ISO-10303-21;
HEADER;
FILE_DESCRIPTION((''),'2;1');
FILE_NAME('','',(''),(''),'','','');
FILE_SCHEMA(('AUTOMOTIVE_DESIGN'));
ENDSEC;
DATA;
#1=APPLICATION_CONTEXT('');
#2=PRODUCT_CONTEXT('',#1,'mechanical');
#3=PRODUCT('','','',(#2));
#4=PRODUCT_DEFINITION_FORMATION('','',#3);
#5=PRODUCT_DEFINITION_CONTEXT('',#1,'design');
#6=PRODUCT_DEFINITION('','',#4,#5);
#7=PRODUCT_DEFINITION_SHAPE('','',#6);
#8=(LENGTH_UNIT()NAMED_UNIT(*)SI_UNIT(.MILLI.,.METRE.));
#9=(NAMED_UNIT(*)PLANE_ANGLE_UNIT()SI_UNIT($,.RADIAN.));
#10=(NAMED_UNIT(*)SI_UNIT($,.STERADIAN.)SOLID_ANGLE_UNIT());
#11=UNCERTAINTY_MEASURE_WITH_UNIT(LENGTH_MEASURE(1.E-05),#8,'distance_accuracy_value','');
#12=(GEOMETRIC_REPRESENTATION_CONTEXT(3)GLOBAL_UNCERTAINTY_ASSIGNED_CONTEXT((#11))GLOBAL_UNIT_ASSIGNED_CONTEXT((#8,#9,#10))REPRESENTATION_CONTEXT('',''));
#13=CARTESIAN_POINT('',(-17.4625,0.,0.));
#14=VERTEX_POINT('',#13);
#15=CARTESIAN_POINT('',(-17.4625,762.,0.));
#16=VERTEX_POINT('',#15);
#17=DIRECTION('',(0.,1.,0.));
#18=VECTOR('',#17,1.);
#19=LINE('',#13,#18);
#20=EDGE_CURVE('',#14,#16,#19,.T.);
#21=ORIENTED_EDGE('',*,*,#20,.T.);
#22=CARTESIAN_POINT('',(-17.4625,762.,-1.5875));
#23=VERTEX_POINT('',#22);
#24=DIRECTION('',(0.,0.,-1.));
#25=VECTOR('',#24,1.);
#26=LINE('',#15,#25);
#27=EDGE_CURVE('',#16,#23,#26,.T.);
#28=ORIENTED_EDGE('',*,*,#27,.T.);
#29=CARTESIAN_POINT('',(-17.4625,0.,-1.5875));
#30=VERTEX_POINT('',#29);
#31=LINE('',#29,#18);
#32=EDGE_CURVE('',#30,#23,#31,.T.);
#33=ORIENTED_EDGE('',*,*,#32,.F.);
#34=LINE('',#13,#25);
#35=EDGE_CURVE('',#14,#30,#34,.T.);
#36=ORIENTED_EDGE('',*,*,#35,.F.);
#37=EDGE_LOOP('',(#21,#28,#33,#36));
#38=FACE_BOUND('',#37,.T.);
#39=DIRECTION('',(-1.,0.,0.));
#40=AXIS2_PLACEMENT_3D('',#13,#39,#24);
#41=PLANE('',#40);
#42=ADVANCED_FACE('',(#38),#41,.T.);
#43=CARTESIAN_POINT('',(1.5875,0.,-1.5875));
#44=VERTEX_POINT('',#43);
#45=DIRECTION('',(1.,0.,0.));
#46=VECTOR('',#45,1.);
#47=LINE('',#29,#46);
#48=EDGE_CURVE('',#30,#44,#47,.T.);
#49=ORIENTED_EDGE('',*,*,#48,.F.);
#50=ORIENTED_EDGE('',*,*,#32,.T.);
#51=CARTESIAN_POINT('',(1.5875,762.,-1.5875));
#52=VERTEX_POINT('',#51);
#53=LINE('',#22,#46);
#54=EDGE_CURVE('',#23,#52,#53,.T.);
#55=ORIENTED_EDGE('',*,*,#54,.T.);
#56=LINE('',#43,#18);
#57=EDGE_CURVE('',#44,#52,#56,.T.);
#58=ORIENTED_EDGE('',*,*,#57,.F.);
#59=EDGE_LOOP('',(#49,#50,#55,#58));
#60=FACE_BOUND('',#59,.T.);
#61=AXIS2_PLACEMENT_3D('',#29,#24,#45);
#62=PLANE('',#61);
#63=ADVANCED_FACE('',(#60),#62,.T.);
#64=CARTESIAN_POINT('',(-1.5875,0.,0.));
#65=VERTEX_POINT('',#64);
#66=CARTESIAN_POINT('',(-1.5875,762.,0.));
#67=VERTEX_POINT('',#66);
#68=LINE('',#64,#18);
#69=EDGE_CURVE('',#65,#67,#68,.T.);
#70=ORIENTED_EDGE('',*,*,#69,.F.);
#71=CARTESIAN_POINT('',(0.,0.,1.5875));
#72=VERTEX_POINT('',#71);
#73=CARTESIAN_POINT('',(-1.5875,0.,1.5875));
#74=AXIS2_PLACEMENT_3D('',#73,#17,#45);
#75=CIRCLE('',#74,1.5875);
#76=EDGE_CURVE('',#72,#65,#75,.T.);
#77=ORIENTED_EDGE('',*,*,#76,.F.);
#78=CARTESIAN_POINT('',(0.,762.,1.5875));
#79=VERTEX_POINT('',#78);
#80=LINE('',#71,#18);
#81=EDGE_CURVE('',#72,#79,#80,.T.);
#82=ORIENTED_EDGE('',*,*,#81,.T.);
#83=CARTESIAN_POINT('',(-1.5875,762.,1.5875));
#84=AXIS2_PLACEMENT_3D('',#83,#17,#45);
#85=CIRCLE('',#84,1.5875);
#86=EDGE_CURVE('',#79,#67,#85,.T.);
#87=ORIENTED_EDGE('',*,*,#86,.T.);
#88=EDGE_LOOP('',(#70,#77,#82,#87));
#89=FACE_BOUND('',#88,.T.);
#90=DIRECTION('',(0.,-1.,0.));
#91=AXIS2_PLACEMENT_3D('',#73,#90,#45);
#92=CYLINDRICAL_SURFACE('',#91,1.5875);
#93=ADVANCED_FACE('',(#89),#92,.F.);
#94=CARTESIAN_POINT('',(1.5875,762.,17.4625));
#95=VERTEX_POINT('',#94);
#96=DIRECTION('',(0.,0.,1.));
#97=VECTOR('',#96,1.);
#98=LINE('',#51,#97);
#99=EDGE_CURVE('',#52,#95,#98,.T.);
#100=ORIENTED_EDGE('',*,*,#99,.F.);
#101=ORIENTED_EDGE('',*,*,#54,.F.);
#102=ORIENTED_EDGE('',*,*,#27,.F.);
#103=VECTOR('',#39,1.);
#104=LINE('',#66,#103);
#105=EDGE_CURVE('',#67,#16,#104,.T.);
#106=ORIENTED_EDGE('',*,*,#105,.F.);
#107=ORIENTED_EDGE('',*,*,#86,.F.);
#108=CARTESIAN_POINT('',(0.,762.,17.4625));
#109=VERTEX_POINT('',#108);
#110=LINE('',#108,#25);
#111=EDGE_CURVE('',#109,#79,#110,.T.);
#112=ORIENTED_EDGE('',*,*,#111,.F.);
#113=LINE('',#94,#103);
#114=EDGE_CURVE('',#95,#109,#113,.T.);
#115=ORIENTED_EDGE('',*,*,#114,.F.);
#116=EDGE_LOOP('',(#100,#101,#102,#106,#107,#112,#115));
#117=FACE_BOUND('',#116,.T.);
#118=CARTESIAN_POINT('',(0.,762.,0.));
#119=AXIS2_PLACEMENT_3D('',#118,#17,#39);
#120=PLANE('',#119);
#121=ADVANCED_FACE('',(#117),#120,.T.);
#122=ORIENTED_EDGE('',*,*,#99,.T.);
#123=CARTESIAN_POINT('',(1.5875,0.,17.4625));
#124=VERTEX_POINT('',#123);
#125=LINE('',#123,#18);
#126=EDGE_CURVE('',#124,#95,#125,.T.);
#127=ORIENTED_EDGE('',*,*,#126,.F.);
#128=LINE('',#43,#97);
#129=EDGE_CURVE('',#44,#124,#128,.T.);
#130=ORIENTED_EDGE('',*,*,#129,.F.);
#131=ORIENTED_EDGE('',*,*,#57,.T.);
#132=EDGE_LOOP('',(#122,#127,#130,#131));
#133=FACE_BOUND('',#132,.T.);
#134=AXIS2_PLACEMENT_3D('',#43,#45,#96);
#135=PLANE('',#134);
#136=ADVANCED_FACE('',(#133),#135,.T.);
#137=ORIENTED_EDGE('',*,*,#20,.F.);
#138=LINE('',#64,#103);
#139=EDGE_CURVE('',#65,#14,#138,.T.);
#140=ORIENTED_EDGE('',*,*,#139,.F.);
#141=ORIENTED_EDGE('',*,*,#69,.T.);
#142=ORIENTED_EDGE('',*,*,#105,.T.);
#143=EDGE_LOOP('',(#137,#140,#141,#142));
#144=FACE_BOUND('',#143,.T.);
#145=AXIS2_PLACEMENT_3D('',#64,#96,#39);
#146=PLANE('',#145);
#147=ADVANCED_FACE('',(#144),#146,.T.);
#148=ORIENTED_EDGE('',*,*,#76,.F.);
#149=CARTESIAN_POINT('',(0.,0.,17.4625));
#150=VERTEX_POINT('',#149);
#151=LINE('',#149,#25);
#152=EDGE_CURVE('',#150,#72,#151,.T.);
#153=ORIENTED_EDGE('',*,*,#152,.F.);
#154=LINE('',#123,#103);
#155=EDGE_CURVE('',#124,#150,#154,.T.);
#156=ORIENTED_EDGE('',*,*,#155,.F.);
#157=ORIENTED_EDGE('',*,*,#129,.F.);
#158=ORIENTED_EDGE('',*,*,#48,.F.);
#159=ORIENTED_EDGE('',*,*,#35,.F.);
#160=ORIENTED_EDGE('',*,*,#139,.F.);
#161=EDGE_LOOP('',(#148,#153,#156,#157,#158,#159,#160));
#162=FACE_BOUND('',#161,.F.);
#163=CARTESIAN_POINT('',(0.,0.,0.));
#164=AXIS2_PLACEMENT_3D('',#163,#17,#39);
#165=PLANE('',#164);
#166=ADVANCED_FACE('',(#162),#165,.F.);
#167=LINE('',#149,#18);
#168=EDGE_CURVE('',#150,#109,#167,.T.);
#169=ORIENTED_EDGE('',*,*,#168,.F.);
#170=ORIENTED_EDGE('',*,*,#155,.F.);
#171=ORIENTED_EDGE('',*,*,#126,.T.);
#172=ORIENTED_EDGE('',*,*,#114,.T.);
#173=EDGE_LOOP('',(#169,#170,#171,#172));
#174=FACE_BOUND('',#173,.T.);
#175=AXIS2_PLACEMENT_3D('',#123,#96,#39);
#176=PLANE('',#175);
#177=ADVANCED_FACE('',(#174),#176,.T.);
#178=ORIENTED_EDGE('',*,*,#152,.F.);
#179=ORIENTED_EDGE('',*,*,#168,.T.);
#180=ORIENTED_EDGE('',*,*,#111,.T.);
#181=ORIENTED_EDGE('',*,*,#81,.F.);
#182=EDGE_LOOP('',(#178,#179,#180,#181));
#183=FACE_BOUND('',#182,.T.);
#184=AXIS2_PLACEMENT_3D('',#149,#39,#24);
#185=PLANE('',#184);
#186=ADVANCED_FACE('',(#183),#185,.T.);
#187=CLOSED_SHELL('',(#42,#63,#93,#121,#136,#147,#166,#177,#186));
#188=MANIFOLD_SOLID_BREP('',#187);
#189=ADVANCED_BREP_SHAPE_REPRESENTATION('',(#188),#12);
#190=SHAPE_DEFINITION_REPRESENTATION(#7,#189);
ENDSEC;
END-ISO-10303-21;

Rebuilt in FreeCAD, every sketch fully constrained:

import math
import FreeCAD as App
import Part
import Sketcher

V = App.Vector
Q = App.Units.Quantity

doc = App.newDocument("Part")
body = doc.addObject("PartDesign::Body", "Body")

# Sketch on XZ plane
sketch1 = body.newObject("Sketcher::SketchObject", "Sketch")
sketch1.AttachmentSupport = (doc.getObject("XZ_Plane"), [""])
sketch1.MapMode = "FlatFace"
sketch1.addGeometry([
    Part.LineSegment(V(0, 1.6, 0), V(0, 17.5, 0)),  # 0
    Part.LineSegment(V(0, 17.5, 0), V(1.6, 17.5, 0)),  # 1
    Part.LineSegment(V(1.6, 17.5, 0), V(1.6, -1.6, 0)),  # 2
    Part.LineSegment(V(1.6, -1.6, 0), V(-17.5, -1.6, 0)),  # 3
    Part.LineSegment(V(-17.5, -1.6, 0), V(-17.5, 0, 0)),  # 4
    Part.LineSegment(V(-17.5, 0, 0), V(-1.6, 0, 0)),  # 5
    Part.ArcOfCircle(Part.Circle(V(-1.6, 1.6, 0), V(0, 0, 1), 1.6), math.radians(-90), math.radians(0)),  # 6
], False)
sketch1.addConstraint([
    Sketcher.Constraint("Coincident", 0, 2, 1, 1),
    Sketcher.Constraint("Coincident", 1, 2, 2, 1),
    Sketcher.Constraint("Coincident", 2, 2, 3, 1),
    Sketcher.Constraint("Coincident", 3, 2, 4, 1),
    Sketcher.Constraint("Coincident", 4, 2, 5, 1),
    Sketcher.Constraint("Tangent", 5, 2, 6, 1),
    Sketcher.Constraint("Tangent", 6, 2, 0, 1),
    Sketcher.Constraint("Vertical", 0),
    Sketcher.Constraint("Horizontal", 1),
    Sketcher.Constraint("Vertical", 2),
    Sketcher.Constraint("Horizontal", 3),
    Sketcher.Constraint("Vertical", 4),
    Sketcher.Constraint("Horizontal", 5),
    Sketcher.Constraint("PointOnObject", 0, 2, -2),
    Sketcher.Constraint("PointOnObject", 4, 2, -1),
    Sketcher.Constraint("Equal", 5, 0),
    Sketcher.Constraint("Equal", 3, 2),
    Sketcher.Constraint("Radius", 6, Q("0.0625 in")),
    Sketcher.Constraint("DistanceX", 3, 2, 3, 1, Q("0.75 in")),
    Sketcher.Constraint("DistanceX", 1, 1, 1, 2, Q("0.0625 in")),
])
pad1 = body.newObject("PartDesign::Pad", "Pad")
pad1.Profile = sketch1
pad1.Length = Q("30 in")
pad1.Reversed = True

doc.recompute()
